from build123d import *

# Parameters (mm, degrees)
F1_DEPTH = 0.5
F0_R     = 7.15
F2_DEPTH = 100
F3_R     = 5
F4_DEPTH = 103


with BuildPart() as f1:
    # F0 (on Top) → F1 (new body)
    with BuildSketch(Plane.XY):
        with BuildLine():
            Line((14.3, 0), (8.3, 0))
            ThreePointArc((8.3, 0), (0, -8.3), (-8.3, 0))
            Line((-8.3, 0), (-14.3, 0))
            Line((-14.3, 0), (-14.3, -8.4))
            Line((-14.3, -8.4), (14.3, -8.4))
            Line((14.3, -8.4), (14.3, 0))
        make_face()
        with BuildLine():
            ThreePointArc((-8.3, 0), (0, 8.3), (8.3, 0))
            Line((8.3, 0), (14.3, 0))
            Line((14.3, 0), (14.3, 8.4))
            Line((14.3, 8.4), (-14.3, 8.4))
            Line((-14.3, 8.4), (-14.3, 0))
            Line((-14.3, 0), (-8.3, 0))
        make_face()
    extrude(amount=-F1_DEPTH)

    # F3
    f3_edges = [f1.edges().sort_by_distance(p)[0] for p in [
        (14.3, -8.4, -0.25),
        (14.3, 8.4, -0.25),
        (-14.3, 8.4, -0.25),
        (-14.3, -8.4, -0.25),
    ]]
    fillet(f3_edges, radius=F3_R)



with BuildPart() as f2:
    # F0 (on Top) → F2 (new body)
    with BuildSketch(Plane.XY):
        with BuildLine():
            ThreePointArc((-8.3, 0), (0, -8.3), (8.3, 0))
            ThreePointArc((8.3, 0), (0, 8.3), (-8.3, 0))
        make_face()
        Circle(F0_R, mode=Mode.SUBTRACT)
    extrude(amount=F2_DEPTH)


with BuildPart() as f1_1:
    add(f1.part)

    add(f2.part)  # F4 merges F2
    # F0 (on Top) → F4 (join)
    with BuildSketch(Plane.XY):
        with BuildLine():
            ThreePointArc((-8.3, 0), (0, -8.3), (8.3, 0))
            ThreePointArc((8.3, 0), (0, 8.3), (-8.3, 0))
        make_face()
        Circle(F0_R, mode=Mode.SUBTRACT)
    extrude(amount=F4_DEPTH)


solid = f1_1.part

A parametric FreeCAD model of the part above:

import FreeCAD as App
import Part
import Sketcher
from FreeCAD import Vector
Q = App.Units.Quantity


def edges_at(feature, points):
    """Names of the edges that pass closest to the given points."""
    edges = feature.Shape.Edges
    near = lambda p: min(range(len(edges)), key=lambda i: edges[i].distToShape(Part.Vertex(*p))[0])
    return sorted({f"Edge{near(p) + 1}" for p in points})


def add_polygon(sketch, points):
    """Adds a closed chain of lines whose ends are joined by coincident constraints."""
    first, n = sketch.GeometryCount, len(points)
    for a, b in zip(points, points[1:] + points[:1]):
        sketch.addGeometry(Part.LineSegment(App.Vector(*a, 0), App.Vector(*b, 0)), False)
    for i in range(n):
        sketch.addConstraint(Sketcher.Constraint("Coincident", first + i, 2, first + (i + 1) % n, 1))

doc = App.newDocument("Part")
body = doc.addObject("PartDesign::Body", "Body")

sketch1 = body.newObject("Sketcher::SketchObject", "Sketch")
sketch1.AttachmentSupport = (doc.getObject("XY_Plane"), [""])
sketch1.MapMode = "FlatFace"
add_polygon(sketch1, [(-14, -8), (14, -8), (14, 8), (-14, 8)])
sketch1.addGeometry(Part.Circle(Vector(0, 0, 0), Vector(0, 0, 1), 8), False)
sketch1.addConstraint(Sketcher.Constraint("Horizontal", 0))
sketch1.addConstraint(Sketcher.Constraint("Vertical", 1))
sketch1.addConstraint(Sketcher.Constraint("Horizontal", 2))
sketch1.addConstraint(Sketcher.Constraint("Vertical", 3))
sketch1.addConstraint(Sketcher.Constraint("Coincident", 4, 3, -1, 1))
sketch1.addConstraint(Sketcher.Constraint("Symmetric", 0, 2, 2, 2, -1, 1))
sketch1.addConstraint(Sketcher.Constraint("Diameter", 4, Q("16.6 mm")))
sketch1.addConstraint(Sketcher.Constraint("DistanceX", 0, 1, 0, 2, Q("28.6 mm")))
sketch1.addConstraint(Sketcher.Constraint("DistanceY", 1, 1, 1, 2, Q("16.8 mm")))
pad1 = body.newObject("PartDesign::Pad", "Pad")
pad1.Profile = sketch1
pad1.Length = 0.5
pad1.Reversed = True
doc.recompute()

fillet = body.newObject("PartDesign::Fillet", "Fillet")
fillet.Base = (pad1, edges_at(pad1, [
    (14.3, -8.4, -0.25),
    (14.3, 8.4, -0.25),
    (-14.3, 8.4, -0.25),
    (-14.3, -8.4, -0.25),
]))
fillet.Radius = 5
body2 = doc.addObject("PartDesign::Body", "Body001")

sketch2 = body2.newObject("Sketcher::SketchObject", "Sketch001")
sketch2.AttachmentSupport = (doc.getObject("XY_Plane001"), [""])
sketch2.MapMode = "FlatFace"
sketch2.addGeometry(Part.Circle(Vector(0, 0, 0), Vector(0, 0, 1), 8), False)
sketch2.addGeometry(Part.Circle(Vector(0, 0, 0), Vector(0, 0, 1), 7), False)
sketch2.addConstraint(Sketcher.Constraint("Coincident", 0, 3, -1, 1))
sketch2.addConstraint(Sketcher.Constraint("Coincident", 1, 3, -1, 1))
sketch2.addConstraint(Sketcher.Constraint("Diameter", 0, Q("16.6 mm")))
sketch2.addConstraint(Sketcher.Constraint("Diameter", 1, Q("14.3 mm")))
pad2 = body2.newObject("PartDesign::Pad", "Pad001")
pad2.Profile = sketch2
pad2.Length = 100
body.AllowCompound = True
doc.recompute()

boolean = body.newObject("PartDesign::Boolean", "Boolean")
boolean.Type = "Fuse"
boolean.addObjects([body2])

sketch3 = body.newObject("Sketcher::SketchObject", "Sketch002")
sketch3.AttachmentSupport = (doc.getObject("XY_Plane"), [""])
sketch3.MapMode = "FlatFace"
sketch3.addGeometry(Part.Circle(Vector(0, 0, 0), Vector(0, 0, 1), 8), False)
sketch3.addGeometry(Part.Circle(Vector(0, 0, 0), Vector(0, 0, 1), 7), False)
sketch3.addConstraint(Sketcher.Constraint("Coincident", 0, 3, -1, 1))
sketch3.addConstraint(Sketcher.Constraint("Coincident", 1, 3, -1, 1))
sketch3.addConstraint(Sketcher.Constraint("Diameter", 0, Q("16.6 mm")))
sketch3.addConstraint(Sketcher.Constraint("Diameter", 1, Q("14.3 mm")))
pad3 = body.newObject("PartDesign::Pad", "Pad002")
pad3.Profile = sketch3
pad3.Length = 103

doc.recompute()
